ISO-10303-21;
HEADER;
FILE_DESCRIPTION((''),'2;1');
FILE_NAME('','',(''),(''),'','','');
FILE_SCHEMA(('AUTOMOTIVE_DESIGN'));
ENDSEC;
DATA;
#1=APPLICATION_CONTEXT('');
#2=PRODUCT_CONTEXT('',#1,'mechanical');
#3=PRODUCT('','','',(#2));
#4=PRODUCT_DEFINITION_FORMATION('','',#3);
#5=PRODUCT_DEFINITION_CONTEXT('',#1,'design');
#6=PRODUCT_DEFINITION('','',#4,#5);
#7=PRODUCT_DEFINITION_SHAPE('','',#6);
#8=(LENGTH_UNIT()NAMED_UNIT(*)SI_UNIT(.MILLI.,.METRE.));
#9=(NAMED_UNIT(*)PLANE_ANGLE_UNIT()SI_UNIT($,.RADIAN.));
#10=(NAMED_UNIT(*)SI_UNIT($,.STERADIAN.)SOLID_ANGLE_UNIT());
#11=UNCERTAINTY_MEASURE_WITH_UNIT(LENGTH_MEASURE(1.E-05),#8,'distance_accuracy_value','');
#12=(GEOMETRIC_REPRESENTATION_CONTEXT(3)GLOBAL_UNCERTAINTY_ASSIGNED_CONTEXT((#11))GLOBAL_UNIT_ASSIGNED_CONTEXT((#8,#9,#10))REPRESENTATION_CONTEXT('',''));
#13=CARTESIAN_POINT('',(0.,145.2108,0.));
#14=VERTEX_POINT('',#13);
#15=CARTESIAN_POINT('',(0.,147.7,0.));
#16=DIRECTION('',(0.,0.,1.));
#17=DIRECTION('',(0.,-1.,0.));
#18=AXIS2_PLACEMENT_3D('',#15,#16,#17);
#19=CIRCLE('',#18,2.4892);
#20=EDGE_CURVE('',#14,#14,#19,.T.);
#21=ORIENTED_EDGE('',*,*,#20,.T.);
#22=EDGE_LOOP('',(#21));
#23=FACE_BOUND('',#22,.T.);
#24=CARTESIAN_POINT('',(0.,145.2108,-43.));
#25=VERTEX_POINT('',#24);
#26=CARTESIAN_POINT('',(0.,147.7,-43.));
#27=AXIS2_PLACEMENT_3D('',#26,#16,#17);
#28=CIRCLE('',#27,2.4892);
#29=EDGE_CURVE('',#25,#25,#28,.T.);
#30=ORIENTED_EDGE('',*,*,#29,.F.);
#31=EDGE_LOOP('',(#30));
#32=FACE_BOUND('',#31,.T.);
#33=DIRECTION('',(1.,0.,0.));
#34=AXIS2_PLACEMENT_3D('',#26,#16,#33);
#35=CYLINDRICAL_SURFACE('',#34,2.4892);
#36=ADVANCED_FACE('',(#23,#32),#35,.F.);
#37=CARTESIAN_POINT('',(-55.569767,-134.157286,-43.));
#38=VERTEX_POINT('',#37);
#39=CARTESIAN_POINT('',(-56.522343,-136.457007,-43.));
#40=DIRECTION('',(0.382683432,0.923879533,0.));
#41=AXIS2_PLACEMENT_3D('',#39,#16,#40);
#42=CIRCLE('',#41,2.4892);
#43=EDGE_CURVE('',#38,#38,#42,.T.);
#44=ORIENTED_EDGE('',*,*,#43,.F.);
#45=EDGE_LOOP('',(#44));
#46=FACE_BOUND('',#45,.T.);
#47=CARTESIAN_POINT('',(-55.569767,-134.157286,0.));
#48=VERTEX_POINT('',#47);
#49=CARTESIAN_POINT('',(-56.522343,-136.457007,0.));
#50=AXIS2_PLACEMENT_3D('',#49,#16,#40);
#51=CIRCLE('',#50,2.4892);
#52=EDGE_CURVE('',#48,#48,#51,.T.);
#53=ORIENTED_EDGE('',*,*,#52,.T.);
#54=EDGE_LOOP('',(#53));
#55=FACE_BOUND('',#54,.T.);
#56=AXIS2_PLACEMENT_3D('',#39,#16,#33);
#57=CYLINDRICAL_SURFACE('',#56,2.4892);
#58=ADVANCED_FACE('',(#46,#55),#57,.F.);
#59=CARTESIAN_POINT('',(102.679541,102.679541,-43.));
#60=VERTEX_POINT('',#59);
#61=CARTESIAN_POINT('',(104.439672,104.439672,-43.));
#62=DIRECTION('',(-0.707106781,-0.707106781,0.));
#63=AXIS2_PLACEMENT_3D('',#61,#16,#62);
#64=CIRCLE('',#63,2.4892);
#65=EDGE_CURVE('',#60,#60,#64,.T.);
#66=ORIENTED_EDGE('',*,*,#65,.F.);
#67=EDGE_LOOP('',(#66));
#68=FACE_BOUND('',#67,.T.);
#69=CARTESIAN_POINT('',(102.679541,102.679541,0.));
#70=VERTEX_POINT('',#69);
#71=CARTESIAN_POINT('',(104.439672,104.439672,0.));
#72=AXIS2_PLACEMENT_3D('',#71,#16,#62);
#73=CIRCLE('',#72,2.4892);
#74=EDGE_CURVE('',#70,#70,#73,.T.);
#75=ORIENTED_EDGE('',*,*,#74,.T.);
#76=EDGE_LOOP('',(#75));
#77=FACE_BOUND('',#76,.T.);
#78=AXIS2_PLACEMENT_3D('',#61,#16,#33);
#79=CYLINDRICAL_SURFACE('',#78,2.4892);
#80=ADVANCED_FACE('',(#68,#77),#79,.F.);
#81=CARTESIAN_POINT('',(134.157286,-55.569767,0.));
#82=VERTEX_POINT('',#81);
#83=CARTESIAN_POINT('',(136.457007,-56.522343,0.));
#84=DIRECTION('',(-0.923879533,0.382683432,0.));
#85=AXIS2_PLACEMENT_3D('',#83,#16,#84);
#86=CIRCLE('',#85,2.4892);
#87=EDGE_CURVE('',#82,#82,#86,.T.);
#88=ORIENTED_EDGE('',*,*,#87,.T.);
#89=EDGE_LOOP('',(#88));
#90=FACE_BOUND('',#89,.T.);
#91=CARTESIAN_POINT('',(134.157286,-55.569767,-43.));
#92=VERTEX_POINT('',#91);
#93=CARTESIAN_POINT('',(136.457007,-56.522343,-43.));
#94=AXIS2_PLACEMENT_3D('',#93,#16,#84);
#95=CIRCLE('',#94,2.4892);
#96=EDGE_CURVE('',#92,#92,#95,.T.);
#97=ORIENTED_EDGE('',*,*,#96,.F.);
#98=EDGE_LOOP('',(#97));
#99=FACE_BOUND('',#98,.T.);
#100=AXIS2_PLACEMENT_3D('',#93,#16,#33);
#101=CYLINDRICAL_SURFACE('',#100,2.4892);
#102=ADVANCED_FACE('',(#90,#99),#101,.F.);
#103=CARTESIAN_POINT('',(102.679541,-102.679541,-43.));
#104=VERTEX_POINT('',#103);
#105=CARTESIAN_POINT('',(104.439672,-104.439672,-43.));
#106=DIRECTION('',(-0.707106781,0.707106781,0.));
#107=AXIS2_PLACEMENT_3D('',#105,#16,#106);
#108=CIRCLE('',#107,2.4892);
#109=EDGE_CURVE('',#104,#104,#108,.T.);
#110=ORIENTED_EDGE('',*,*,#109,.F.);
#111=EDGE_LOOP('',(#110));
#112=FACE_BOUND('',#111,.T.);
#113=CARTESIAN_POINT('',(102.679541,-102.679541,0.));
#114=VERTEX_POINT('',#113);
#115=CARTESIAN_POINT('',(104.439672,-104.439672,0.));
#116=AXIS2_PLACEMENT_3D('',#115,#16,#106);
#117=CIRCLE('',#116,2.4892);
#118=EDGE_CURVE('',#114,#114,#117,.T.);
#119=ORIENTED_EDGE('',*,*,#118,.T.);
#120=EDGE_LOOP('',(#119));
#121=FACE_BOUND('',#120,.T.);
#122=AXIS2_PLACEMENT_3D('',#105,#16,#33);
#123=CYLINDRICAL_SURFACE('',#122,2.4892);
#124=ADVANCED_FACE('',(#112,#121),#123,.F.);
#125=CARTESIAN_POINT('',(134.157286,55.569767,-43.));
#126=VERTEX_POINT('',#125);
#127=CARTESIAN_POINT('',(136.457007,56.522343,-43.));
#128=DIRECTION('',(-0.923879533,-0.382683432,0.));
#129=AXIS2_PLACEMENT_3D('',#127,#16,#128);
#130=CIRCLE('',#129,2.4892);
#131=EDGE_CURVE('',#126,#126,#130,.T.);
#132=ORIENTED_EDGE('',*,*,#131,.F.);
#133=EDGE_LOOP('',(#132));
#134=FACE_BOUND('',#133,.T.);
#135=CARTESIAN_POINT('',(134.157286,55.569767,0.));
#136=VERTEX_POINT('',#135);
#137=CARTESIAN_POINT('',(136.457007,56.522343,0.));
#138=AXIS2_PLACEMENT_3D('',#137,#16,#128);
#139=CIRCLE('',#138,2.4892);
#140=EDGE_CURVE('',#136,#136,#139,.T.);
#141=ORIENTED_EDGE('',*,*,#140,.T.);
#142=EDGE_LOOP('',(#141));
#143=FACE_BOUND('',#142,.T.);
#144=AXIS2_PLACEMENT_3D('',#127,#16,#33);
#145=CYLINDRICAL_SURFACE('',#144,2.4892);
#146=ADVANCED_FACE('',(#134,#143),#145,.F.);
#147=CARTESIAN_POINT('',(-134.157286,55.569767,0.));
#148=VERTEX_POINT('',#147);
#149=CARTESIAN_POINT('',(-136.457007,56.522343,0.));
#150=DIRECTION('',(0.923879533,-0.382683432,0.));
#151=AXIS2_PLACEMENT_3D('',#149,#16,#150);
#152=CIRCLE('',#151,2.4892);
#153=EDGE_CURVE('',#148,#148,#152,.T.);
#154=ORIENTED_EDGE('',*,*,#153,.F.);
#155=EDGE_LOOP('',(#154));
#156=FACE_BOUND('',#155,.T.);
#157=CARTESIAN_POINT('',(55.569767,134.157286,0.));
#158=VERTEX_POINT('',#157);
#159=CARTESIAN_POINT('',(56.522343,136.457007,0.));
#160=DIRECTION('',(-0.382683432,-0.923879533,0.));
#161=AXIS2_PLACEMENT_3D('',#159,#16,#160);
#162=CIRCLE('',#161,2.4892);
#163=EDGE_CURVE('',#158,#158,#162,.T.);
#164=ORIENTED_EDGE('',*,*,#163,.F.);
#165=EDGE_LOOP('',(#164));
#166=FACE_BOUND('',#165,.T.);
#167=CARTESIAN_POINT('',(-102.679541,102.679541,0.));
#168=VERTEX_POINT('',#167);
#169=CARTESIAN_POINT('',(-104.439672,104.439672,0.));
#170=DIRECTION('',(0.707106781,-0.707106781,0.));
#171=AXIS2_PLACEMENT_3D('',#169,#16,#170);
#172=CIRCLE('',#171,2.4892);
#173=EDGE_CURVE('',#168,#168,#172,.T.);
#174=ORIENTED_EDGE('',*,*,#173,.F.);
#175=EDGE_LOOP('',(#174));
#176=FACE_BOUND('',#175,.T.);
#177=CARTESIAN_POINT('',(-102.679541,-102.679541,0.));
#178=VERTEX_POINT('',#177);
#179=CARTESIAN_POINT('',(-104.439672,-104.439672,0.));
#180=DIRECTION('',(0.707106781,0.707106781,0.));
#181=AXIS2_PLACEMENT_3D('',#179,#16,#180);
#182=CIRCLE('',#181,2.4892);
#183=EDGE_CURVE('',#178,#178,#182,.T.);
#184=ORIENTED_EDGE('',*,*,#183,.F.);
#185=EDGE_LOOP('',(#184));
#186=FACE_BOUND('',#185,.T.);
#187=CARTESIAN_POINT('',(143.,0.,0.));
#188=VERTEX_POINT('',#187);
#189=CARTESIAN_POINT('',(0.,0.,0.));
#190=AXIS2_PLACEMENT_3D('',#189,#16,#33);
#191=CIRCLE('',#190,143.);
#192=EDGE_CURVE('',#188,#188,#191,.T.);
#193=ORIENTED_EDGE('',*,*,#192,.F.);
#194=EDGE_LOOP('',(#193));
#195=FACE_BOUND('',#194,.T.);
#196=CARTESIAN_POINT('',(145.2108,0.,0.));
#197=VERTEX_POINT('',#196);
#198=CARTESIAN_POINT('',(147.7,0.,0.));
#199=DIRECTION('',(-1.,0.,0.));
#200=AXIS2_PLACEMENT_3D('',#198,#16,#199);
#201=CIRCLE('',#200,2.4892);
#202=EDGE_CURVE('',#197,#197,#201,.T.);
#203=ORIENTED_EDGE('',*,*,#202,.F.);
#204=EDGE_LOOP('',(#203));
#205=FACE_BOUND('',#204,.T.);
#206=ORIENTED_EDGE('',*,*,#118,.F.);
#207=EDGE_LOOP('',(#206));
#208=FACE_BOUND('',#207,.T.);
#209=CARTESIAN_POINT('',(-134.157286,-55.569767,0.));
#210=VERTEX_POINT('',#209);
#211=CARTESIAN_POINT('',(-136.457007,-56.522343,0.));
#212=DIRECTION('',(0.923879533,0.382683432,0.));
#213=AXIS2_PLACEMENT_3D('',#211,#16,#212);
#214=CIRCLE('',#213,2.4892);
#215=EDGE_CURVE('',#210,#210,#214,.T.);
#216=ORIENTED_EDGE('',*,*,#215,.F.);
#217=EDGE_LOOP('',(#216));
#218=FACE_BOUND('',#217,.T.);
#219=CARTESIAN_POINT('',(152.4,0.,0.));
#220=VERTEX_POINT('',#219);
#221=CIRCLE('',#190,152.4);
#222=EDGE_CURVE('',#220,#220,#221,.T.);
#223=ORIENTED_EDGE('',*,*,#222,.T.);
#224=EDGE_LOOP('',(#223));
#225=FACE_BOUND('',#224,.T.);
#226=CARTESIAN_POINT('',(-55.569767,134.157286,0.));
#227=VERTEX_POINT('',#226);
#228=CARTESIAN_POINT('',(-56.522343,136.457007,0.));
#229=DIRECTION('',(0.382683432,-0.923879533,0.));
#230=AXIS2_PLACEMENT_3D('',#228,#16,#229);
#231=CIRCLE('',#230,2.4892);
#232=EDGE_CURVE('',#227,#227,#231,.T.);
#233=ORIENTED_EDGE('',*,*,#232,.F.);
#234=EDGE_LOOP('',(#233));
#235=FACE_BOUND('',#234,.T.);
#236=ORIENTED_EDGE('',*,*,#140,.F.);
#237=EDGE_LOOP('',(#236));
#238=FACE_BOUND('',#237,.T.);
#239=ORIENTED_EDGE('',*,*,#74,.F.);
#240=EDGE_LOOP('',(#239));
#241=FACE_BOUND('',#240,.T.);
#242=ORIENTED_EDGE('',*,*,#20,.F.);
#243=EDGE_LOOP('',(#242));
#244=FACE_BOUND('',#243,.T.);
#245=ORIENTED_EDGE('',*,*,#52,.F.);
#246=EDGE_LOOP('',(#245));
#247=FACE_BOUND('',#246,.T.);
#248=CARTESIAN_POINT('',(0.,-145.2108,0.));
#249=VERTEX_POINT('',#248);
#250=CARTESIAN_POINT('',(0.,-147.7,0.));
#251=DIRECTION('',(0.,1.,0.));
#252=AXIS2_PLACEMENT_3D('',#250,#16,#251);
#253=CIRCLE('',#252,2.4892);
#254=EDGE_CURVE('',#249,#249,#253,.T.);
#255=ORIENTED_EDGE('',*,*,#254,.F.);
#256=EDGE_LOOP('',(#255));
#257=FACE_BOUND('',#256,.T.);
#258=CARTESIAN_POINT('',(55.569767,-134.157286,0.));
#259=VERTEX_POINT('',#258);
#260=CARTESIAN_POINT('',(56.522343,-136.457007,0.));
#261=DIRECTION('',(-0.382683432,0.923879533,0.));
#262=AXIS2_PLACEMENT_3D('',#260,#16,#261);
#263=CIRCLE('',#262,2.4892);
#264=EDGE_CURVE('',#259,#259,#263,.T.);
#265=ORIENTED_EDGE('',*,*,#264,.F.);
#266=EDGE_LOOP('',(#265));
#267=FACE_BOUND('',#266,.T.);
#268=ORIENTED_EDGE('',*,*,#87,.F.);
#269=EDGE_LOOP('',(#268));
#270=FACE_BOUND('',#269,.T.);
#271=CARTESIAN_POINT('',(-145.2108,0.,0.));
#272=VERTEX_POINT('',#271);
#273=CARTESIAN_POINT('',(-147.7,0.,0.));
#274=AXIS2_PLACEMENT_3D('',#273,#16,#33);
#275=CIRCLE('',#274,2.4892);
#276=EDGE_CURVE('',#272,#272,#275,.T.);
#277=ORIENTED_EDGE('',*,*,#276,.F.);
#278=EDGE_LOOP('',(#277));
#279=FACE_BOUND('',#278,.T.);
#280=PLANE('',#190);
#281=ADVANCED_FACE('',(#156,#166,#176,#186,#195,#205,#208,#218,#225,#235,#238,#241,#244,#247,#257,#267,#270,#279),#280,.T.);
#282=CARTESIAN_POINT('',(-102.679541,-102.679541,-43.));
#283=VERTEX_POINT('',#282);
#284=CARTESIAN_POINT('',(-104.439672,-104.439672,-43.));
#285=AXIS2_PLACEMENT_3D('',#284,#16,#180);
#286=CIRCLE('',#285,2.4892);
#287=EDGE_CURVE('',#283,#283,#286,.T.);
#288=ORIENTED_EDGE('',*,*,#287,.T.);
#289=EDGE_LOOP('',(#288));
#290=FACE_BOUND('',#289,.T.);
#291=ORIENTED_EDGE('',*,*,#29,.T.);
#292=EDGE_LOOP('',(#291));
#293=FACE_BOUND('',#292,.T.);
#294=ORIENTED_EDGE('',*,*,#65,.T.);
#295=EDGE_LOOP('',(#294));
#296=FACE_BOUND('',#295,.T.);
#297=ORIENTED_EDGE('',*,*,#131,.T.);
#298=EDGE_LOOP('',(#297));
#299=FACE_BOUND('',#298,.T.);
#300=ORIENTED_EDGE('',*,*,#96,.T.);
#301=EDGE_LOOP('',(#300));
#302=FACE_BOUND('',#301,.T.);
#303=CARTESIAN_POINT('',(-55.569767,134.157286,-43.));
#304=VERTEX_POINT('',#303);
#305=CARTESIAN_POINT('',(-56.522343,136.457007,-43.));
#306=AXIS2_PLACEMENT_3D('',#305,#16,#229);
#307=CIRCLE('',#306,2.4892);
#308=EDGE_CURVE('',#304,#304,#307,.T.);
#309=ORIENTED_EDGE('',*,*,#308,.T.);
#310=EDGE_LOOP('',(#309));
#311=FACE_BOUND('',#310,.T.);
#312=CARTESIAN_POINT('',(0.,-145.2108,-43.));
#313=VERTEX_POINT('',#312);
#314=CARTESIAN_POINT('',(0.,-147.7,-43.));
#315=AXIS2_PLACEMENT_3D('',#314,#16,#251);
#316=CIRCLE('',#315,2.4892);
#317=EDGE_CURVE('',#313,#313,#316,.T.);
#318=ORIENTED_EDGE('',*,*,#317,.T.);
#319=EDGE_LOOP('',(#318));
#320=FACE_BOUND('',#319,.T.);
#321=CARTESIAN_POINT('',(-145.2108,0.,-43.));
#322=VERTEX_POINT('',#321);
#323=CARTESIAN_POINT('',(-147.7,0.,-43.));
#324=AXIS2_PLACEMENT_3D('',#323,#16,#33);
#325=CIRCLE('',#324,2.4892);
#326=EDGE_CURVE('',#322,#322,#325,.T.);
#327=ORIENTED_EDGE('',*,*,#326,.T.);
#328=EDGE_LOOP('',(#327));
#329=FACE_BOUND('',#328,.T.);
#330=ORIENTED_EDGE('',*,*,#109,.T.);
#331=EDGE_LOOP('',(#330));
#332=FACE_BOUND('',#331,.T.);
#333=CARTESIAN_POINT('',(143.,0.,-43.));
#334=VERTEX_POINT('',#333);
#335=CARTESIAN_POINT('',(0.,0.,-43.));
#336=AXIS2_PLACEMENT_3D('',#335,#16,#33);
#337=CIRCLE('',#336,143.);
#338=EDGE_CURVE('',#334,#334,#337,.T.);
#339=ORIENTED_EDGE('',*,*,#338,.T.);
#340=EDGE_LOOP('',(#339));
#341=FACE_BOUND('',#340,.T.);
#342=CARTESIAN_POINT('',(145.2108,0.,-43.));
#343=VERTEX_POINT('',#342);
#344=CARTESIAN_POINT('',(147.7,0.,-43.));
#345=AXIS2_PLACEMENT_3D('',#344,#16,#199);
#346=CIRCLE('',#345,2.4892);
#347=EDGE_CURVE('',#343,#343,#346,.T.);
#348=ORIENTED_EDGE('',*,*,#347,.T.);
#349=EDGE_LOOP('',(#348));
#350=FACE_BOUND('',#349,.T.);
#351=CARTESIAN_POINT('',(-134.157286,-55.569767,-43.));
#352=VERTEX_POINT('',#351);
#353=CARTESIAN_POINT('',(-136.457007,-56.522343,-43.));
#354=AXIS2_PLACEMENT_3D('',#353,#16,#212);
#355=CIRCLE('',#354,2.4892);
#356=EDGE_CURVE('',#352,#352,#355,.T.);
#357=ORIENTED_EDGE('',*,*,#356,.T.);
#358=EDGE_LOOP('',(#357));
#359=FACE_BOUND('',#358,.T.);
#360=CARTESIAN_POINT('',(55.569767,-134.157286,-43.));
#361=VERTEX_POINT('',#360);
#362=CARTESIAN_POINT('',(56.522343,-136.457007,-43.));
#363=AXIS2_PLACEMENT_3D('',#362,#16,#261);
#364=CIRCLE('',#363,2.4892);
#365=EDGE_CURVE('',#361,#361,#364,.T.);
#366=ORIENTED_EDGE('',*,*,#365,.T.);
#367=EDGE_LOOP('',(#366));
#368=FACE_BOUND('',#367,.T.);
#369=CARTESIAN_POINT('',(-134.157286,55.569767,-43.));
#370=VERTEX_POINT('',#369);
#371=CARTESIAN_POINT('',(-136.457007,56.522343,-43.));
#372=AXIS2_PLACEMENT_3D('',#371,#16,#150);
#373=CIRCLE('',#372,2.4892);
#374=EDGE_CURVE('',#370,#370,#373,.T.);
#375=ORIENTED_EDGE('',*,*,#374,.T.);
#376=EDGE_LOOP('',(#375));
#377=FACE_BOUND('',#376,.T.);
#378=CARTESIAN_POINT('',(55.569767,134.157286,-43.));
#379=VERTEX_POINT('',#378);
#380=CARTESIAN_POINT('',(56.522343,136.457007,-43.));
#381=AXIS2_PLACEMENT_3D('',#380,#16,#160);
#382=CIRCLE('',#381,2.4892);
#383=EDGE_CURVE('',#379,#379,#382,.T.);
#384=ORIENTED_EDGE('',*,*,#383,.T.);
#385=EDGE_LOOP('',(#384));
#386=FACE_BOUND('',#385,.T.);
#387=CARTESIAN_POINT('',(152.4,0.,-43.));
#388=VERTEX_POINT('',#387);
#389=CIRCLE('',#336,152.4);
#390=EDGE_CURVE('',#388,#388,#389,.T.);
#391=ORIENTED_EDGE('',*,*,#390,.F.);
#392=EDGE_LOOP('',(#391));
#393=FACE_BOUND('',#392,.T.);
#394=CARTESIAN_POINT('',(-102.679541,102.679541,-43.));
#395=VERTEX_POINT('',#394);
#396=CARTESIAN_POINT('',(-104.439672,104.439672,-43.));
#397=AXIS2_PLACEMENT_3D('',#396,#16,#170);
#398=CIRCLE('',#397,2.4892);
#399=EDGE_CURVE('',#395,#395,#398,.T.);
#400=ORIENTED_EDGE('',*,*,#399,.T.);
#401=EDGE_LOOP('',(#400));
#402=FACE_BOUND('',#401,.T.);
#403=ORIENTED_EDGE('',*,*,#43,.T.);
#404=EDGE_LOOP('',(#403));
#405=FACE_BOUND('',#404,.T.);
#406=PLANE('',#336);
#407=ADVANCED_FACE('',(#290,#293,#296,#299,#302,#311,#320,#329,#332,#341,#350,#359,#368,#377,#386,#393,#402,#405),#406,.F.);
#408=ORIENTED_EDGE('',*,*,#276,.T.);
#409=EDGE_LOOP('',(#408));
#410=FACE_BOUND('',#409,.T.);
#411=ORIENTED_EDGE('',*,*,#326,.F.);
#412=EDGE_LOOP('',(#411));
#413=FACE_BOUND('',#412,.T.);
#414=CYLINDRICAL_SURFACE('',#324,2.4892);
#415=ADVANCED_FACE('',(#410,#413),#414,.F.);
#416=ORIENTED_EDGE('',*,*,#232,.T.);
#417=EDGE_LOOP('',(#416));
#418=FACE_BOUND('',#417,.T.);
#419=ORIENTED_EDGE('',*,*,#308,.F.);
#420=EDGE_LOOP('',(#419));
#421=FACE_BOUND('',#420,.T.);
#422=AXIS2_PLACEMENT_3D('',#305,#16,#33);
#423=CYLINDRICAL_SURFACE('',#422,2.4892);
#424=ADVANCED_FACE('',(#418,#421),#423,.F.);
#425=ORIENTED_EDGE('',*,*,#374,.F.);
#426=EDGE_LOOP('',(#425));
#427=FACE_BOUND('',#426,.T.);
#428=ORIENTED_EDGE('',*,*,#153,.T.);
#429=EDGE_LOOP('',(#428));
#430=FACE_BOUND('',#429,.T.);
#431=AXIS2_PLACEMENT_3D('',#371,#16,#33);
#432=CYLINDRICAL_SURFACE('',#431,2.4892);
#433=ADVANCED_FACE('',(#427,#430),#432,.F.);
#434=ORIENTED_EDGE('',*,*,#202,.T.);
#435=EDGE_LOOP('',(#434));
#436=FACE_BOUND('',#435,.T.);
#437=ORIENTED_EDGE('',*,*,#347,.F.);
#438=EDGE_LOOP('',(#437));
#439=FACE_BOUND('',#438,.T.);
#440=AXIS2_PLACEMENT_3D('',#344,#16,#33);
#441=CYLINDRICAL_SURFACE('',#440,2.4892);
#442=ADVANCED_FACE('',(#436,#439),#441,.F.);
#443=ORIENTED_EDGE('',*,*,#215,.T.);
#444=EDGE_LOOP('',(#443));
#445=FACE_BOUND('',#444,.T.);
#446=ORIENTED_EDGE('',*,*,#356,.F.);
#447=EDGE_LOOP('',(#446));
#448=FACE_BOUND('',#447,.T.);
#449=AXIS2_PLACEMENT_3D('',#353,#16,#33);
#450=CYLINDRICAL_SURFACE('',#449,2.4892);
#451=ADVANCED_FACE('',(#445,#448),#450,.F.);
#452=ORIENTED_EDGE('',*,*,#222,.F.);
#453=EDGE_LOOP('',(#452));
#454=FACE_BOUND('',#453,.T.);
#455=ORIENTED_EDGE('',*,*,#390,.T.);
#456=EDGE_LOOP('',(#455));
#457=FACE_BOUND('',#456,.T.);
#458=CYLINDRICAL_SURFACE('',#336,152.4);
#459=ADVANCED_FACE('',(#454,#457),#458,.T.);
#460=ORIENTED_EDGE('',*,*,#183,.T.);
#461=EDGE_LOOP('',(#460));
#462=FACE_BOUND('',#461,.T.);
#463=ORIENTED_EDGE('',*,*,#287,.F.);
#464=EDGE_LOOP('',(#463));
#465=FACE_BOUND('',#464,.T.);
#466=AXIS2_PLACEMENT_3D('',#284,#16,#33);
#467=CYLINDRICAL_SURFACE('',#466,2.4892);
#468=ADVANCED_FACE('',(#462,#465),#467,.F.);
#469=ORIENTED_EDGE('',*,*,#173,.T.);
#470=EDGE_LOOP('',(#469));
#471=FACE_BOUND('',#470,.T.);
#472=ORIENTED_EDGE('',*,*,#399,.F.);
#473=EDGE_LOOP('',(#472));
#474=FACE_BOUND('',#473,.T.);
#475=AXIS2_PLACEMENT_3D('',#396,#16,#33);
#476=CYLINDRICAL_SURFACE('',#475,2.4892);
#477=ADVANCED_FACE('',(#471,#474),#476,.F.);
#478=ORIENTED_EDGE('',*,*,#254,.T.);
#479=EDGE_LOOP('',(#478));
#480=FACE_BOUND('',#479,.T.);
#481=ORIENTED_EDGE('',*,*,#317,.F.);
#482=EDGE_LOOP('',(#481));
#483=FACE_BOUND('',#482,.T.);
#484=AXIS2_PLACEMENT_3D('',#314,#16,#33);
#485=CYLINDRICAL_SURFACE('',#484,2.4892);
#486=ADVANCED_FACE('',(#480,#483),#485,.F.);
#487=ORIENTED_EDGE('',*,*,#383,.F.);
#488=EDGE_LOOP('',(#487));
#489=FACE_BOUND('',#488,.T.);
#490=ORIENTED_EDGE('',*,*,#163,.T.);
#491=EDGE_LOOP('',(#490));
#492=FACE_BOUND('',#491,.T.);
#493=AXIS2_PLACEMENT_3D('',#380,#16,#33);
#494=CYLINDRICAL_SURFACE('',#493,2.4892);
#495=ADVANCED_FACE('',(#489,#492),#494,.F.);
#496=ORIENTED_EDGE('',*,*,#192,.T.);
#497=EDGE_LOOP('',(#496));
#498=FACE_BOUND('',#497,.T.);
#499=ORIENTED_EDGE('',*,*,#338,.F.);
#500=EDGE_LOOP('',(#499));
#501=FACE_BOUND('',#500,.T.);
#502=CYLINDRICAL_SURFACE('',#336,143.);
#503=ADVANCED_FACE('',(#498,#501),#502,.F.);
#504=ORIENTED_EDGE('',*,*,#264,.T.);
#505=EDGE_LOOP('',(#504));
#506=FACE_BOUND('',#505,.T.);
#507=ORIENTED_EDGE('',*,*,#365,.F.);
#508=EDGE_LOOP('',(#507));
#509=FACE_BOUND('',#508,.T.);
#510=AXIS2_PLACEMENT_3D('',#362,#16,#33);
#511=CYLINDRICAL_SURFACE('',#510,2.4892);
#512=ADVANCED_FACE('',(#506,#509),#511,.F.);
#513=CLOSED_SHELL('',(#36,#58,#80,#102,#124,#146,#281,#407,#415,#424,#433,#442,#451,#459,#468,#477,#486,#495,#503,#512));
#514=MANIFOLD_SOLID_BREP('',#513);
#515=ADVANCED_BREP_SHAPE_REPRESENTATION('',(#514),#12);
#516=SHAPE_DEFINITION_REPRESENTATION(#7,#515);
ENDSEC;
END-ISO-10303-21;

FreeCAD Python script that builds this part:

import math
import FreeCAD as App
import Part
import Sketcher
from FreeCAD import Vector
Q = App.Units.Quantity

doc = App.newDocument("Part")
params = doc.addObject("Spreadsheet::Sheet", "Params")
for row, (alias, value) in enumerate([
    ("sketch1_diameter", "286 mm"),
    ("sketch1_diameter2", "304.8 mm"),
    ("pad1_length", "43 mm"),
], start=1):
    params.set(f"A{row}", alias)
    params.set(f"B{row}", "=" + value)
    params.setAlias(f"B{row}", alias)

body = doc.addObject("PartDesign::Body", "Body")

sketch1 = body.newObject("Sketcher::SketchObject", "Sketch")
sketch1.AttachmentSupport = (doc.getObject("XY_Plane"), [""])
sketch1.MapMode = "FlatFace"
sketch1.addGeometry(Part.Circle(Vector(0, 0, 0), Vector(0, 0, 1), 152), False)
sketch1.addGeometry(Part.Circle(Vector(0, 0, 0), Vector(0, 0, 1), 143), False)
sketch1.addConstraint(Sketcher.Constraint("Coincident", 0, 3, -1, 1))
sketch1.addConstraint(Sketcher.Constraint("Coincident", 1, 3, -1, 1))
sketch1.addConstraint(Sketcher.Constraint("Diameter", 1, Q("286 mm")))
sketch1.addConstraint(Sketcher.Constraint("Diameter", 0, Q("304.8 mm")))
sketch1.setExpression("Constraints[2]", "Params.sketch1_diameter")
sketch1.setExpression("Constraints[3]", "Params.sketch1_diameter2")
pad1 = body.newObject("PartDesign::Pad", "Pad")
pad1.Profile = sketch1
pad1.setExpression("Length", "Params.pad1_length")
pad1.Reversed = True

sketch2 = body.newObject("Sketcher::SketchObject", "Sketch001")
sketch2.AttachmentSupport = (doc.getObject("XY_Plane"), [""])
sketch2.MapMode = "FlatFace"
sketch2.addGeometry(Part.ArcOfCircle(Part.Circle(Vector(-147.7, 0, 0), Vector(0, 0, 1), 2.5), math.radians(180), math.radians(360)), False)
sketch2.addGeometry(Part.ArcOfCircle(Part.Circle(Vector(-147.7, 0, 0), Vector(0, 0, 1), 2.5), math.radians(0), math.radians(90)), False)
sketch2.addGeometry(Part.ArcOfCircle(Part.Circle(Vector(-147.7, 0, 0), Vector(0, 0, 1), 2.5), math.radians(90), math.radians(180)), False)
sketch2.addConstraint(Sketcher.Constraint("Tangent", 0, 2, 1, 1))
sketch2.addConstraint(Sketcher.Constraint("Tangent", 1, 2, 2, 1))
sketch2.addConstraint(Sketcher.Constraint("Tangent", 2, 2, 0, 1))
sketch2.addConstraint(Sketcher.Constraint("PointOnObject", 0, 3, -1))
sketch2.addConstraint(Sketcher.Constraint("PointOnObject", 0, 2, -1))
sketch2.addConstraint(Sketcher.Constraint("PointOnObject", 2, 2, -1))
sketch2.addConstraint(Sketcher.Constraint("Vertical", 2, 3, 1, 2))
sketch2.addConstraint(Sketcher.Constraint("DistanceX", 0, 3, -1, 1, Q("147.7 mm")))
sketch2.addConstraint(Sketcher.Constraint("Radius", 0, Q("2.4892 mm")))
pocket1 = body.newObject("PartDesign::Pocket", "Pocket")
pocket1.Profile = sketch2
pocket1.Type = "ThroughAll"
doc.recompute()

polarpattern = body.newObject("PartDesign::PolarPattern", "PolarPattern")
polarpattern.Originals = [pocket1]
polarpattern.Axis = (doc.getObject("Z_Axis"), [""])
polarpattern.Angle = 360
polarpattern.Occurrences = 16
body.Tip = polarpattern

doc.recompute()
